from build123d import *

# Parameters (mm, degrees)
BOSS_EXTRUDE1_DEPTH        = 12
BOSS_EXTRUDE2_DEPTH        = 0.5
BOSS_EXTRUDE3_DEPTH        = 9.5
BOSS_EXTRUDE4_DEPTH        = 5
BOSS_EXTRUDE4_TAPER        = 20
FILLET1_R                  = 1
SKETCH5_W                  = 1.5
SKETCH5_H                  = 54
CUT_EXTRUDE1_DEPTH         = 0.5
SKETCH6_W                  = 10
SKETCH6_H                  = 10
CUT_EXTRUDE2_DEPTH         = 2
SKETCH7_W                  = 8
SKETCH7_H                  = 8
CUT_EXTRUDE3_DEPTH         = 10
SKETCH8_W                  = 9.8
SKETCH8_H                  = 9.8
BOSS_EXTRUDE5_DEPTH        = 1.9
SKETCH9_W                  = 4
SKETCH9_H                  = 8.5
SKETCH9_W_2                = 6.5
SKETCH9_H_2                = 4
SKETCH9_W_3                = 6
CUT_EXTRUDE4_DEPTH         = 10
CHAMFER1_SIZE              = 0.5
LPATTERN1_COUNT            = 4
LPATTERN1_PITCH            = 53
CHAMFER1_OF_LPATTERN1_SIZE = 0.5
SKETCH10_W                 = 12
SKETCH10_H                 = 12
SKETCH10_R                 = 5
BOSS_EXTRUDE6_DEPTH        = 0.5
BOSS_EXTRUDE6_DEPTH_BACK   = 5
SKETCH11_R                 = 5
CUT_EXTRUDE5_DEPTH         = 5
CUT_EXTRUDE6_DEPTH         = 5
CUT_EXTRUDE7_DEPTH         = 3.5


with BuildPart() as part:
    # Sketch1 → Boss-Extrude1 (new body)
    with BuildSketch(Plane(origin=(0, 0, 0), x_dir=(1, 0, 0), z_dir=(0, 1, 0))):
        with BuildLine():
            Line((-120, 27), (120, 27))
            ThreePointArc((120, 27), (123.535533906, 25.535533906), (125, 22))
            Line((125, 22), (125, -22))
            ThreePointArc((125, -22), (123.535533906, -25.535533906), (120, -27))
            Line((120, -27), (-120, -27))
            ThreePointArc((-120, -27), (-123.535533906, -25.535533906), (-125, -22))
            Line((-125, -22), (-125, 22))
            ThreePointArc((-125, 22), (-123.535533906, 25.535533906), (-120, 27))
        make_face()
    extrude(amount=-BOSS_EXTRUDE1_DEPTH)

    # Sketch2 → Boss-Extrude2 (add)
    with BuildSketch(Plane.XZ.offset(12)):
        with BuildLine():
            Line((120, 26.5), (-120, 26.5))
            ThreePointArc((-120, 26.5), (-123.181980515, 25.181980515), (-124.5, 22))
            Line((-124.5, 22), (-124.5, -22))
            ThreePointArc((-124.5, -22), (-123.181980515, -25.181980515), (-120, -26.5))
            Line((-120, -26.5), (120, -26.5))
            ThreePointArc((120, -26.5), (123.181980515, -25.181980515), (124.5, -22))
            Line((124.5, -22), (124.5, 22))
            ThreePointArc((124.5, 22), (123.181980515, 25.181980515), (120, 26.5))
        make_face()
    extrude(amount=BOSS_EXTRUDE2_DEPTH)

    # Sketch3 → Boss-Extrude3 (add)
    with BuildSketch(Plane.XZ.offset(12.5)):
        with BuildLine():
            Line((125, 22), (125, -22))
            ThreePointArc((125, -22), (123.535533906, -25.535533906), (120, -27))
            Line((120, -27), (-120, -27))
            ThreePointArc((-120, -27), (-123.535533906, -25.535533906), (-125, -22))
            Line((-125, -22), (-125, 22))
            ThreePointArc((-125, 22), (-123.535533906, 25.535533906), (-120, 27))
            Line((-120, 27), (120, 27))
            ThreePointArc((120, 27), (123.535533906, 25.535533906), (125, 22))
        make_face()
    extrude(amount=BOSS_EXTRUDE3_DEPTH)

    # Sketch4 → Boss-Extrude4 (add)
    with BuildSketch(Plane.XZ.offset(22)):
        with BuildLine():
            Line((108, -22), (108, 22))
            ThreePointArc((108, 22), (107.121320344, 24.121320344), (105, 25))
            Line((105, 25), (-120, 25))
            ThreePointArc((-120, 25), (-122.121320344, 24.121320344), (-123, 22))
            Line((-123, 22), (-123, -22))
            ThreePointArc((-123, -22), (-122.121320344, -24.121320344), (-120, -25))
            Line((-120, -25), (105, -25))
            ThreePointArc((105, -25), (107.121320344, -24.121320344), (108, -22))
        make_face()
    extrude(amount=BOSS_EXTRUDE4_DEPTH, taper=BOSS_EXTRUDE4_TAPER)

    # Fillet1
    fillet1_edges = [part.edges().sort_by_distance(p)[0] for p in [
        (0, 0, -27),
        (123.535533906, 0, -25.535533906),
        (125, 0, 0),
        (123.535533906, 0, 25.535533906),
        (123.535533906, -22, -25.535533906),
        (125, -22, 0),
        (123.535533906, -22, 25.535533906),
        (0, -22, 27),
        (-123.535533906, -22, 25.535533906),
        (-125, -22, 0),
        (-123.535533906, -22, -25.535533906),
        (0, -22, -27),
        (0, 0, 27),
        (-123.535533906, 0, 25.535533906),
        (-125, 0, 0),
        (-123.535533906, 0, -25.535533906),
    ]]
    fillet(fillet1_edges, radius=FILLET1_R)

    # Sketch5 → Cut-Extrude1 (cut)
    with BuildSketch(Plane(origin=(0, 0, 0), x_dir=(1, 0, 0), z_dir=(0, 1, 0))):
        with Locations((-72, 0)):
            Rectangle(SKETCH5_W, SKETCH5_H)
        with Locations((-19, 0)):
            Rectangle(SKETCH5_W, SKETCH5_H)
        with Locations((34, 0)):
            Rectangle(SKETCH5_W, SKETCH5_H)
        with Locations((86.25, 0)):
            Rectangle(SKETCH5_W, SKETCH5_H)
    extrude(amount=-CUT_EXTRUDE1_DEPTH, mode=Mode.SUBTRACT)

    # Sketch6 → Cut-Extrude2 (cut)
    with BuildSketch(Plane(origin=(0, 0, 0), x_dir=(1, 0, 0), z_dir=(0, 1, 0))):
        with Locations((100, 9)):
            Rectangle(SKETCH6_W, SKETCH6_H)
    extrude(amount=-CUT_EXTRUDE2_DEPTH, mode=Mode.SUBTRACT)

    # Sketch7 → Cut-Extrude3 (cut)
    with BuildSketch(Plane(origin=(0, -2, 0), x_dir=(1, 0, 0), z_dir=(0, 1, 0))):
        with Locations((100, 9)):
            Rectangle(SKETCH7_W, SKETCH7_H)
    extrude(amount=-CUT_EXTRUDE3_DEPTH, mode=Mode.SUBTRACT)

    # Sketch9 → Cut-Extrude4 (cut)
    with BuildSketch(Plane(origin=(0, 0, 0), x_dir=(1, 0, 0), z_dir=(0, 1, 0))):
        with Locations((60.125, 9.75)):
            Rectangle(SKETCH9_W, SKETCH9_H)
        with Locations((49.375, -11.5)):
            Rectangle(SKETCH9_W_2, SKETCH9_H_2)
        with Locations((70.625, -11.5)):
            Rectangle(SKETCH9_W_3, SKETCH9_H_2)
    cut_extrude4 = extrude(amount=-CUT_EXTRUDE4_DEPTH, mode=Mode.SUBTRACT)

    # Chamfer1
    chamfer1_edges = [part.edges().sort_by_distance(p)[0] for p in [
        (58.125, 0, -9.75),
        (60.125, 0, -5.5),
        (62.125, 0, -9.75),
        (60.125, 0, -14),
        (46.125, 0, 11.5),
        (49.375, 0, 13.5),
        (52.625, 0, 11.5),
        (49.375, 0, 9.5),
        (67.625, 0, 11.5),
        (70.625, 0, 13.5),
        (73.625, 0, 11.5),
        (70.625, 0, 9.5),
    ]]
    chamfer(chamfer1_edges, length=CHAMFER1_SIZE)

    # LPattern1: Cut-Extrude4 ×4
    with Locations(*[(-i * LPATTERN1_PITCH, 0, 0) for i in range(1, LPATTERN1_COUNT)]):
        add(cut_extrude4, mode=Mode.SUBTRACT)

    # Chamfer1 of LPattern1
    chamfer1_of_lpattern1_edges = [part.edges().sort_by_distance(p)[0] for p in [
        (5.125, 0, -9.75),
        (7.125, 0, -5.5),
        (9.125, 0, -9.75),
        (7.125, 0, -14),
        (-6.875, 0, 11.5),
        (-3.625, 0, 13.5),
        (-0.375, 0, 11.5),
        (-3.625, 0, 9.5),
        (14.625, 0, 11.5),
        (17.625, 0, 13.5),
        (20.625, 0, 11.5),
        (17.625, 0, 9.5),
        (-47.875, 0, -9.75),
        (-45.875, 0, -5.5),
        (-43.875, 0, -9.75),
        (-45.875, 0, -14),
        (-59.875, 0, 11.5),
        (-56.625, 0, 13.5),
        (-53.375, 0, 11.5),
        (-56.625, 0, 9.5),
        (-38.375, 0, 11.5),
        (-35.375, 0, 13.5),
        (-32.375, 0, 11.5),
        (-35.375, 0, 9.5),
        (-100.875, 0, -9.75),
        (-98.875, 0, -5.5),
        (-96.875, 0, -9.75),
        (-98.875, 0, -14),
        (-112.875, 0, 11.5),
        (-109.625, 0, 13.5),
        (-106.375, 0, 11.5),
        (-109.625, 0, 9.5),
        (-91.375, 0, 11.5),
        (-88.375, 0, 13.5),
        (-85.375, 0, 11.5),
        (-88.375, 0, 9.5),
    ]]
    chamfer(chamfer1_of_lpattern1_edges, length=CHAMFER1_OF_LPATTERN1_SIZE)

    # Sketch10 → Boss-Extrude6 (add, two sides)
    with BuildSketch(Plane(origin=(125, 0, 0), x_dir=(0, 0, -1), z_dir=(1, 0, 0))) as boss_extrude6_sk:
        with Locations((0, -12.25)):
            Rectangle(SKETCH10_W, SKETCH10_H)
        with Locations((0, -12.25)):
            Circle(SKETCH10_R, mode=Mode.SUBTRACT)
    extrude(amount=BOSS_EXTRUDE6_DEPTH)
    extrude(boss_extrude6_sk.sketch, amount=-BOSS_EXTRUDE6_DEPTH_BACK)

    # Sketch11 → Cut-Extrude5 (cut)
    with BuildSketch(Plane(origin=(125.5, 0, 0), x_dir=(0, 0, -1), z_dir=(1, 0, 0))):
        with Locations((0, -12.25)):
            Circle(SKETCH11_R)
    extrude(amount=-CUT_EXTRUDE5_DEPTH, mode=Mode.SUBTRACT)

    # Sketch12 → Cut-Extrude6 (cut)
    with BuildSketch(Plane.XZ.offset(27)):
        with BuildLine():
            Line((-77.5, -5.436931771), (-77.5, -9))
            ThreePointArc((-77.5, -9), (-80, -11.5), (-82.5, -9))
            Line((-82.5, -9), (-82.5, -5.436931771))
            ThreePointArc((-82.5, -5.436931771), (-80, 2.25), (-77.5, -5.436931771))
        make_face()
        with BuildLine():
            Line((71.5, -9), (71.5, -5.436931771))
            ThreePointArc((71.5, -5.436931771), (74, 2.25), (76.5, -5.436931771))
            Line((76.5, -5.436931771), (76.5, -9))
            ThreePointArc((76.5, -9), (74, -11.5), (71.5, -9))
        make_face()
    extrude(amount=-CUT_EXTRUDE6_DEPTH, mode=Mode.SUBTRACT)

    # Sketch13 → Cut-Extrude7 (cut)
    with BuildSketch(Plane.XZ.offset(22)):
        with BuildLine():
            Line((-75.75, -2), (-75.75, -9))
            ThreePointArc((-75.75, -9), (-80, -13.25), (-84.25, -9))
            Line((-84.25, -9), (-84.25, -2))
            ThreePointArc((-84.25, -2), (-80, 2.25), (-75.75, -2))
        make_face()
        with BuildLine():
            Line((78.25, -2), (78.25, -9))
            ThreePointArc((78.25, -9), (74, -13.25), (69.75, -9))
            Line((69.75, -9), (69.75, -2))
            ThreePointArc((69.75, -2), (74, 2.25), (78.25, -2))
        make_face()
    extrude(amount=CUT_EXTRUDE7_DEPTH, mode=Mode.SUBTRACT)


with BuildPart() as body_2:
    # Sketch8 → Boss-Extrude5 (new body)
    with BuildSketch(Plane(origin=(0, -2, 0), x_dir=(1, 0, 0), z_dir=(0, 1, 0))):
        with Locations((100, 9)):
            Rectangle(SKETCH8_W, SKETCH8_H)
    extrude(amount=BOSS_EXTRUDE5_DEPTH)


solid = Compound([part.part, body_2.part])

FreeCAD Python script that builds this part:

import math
import FreeCAD as App
import Part
import Sketcher
from FreeCAD import Vector


def edges_at(feature, points):
    """Names of the edges that pass closest to the given points."""
    edges = feature.Shape.Edges
    near = lambda p: min(range(len(edges)), key=lambda i: edges[i].distToShape(Part.Vertex(*p))[0])
    return sorted({f"Edge{near(p) + 1}" for p in points})


def add_polygon(sketch, points):
    """Adds a closed chain of lines whose ends are joined by coincident constraints."""
    first, n = sketch.GeometryCount, len(points)
    for a, b in zip(points, points[1:] + points[:1]):
        sketch.addGeometry(Part.LineSegment(App.Vector(*a, 0), App.Vector(*b, 0)), False)
    for i in range(n):
        sketch.addConstraint(Sketcher.Constraint("Coincident", first + i, 2, first + (i + 1) % n, 1))

doc = App.newDocument("Part")
body = doc.addObject("PartDesign::Body", "Body")

# Sketch on XZ plane
sketch1 = body.newObject("Sketcher::SketchObject", "Sketch")
sketch1.AttachmentSupport = (doc.getObject("XZ_Plane"), [""])
sketch1.MapMode = "FlatFace"
sketch1.addGeometry(Part.LineSegment(Vector(120, -27, 0), Vector(-120, -27, 0)), False)
sketch1.addGeometry(Part.ArcOfCircle(Part.Circle(Vector(-120, -22, 0), Vector(0, 0, 1), 5), math.radians(180), math.radians(270)), False)
sketch1.addGeometry(Part.LineSegment(Vector(-125, -22, 0), Vector(-125, 22, 0)), False)
sketch1.addGeometry(Part.ArcOfCircle(Part.Circle(Vector(-120, 22, 0), Vector(0, 0, 1), 5), math.radians(90), math.radians(180)), False)
sketch1.addGeometry(Part.LineSegment(Vector(-120, 27, 0), Vector(120, 27, 0)), False)
sketch1.addGeometry(Part.ArcOfCircle(Part.Circle(Vector(120, 22, 0), Vector(0, 0, 1), 5), math.radians(0), math.radians(90)), False)
sketch1.addGeometry(Part.LineSegment(Vector(125, 22, 0), Vector(125, -22, 0)), False)
sketch1.addGeometry(Part.ArcOfCircle(Part.Circle(Vector(120, -22, 0), Vector(0, 0, 1), 5), math.radians(-90), math.radians(0)), False)
sketch1.addConstraint(Sketcher.Constraint("Tangent", 0, 2, 1, 2))
sketch1.addConstraint(Sketcher.Constraint("Tangent", 1, 1, 2, 1))
sketch1.addConstraint(Sketcher.Constraint("Tangent", 2, 2, 3, 2))
sketch1.addConstraint(Sketcher.Constraint("Tangent", 3, 1, 4, 1))
sketch1.addConstraint(Sketcher.Constraint("Tangent", 4, 2, 5, 2))
sketch1.addConstraint(Sketcher.Constraint("Tangent", 5, 1, 6, 1))
sketch1.addConstraint(Sketcher.Constraint("Tangent", 6, 2, 7, 2))
sketch1.addConstraint(Sketcher.Constraint("Tangent", 7, 1, 0, 1))
sketch1.addConstraint(Sketcher.Constraint("Horizontal", 0))
sketch1.addConstraint(Sketcher.Constraint("Vertical", 2))
sketch1.addConstraint(Sketcher.Constraint("Horizontal", 4))
sketch1.addConstraint(Sketcher.Constraint("Vertical", 6))
sketch1.addConstraint(Sketcher.Constraint("Equal", 1, 3))
sketch1.addConstraint(Sketcher.Constraint("Equal", 3, 5))
sketch1.addConstraint(Sketcher.Constraint("Equal", 5, 7))
sketch1.addConstraint(Sketcher.Constraint("Symmetric", 1, 3, 5, 3, -1, 1))
sketch1.addConstraint(Sketcher.Constraint("Radius", 1, 5.0))
sketch1.addConstraint(Sketcher.Constraint("DistanceX", 0, 2, 0, 1, 240.0))
sketch1.addConstraint(Sketcher.Constraint("DistanceY", 2, 1, 2, 2, 44.0))
pad1 = body.newObject("PartDesign::Pad", "Pad")
pad1.Profile = sketch1
pad1.Length = 12

# Sketch on XZ plane
sketch2 = body.newObject("Sketcher::SketchObject", "Sketch001")
sketch2.AttachmentSupport = (doc.getObject("XZ_Plane"), [""])
sketch2.MapMode = "FlatFace"
sketch2.AttachmentOffset = App.Placement(Vector(0, 0, 12), App.Rotation())
sketch2.addGeometry(Part.LineSegment(Vector(120, 26.5, 0), Vector(-120, 26.5, 0)), False)
sketch2.addGeometry(Part.ArcOfCircle(Part.Circle(Vector(-120, 22, 0), Vector(0, 0, 1), 4.5), math.radians(90), math.radians(180)), False)
sketch2.addGeometry(Part.LineSegment(Vector(-124.5, 22, 0), Vector(-124.5, -22, 0)), False)
sketch2.addGeometry(Part.ArcOfCircle(Part.Circle(Vector(-120, -22, 0), Vector(0, 0, 1), 4.5), math.radians(-180), math.radians(-90)), False)
sketch2.addGeometry(Part.LineSegment(Vector(-120, -26.5, 0), Vector(120, -26.5, 0)), False)
sketch2.addGeometry(Part.ArcOfCircle(Part.Circle(Vector(120, -22, 0), Vector(0, 0, 1), 4.5), math.radians(-90), math.radians(0)), False)
sketch2.addGeometry(Part.LineSegment(Vector(124.5, -22, 0), Vector(124.5, 22, 0)), False)
sketch2.addGeometry(Part.ArcOfCircle(Part.Circle(Vector(120, 22, 0), Vector(0, 0, 1), 4.5), math.radians(0), math.radians(90)), False)
sketch2.addConstraint(Sketcher.Constraint("Tangent", 0, 2, 1, 1))
sketch2.addConstraint(Sketcher.Constraint("Tangent", 1, 2, 2, 1))
sketch2.addConstraint(Sketcher.Constraint("Tangent", 2, 2, 3, 1))
sketch2.addConstraint(Sketcher.Constraint("Tangent", 3, 2, 4, 1))
sketch2.addConstraint(Sketcher.Constraint("Tangent", 4, 2, 5, 1))
sketch2.addConstraint(Sketcher.Constraint("Tangent", 5, 2, 6, 1))
sketch2.addConstraint(Sketcher.Constraint("Tangent", 6, 2, 7, 1))
sketch2.addConstraint(Sketcher.Constraint("Tangent", 7, 2, 0, 1))
sketch2.addConstraint(Sketcher.Constraint("Horizontal", 0))
sketch2.addConstraint(Sketcher.Constraint("Vertical", 2))
sketch2.addConstraint(Sketcher.Constraint("Horizontal", 4))
sketch2.addConstraint(Sketcher.Constraint("Vertical", 6))
sketch2.addConstraint(Sketcher.Constraint("Equal", 1, 3))
sketch2.addConstraint(Sketcher.Constraint("Equal", 3, 5))
sketch2.addConstraint(Sketcher.Constraint("Equal", 5, 7))
sketch2.addConstraint(Sketcher.Constraint("Symmetric", 1, 3, 5, 3, -1, 1))
sketch2.addConstraint(Sketcher.Constraint("Radius", 1, 4.5))
sketch2.addConstraint(Sketcher.Constraint("DistanceX", 0, 2, 0, 1, 240.0))
sketch2.addConstraint(Sketcher.Constraint("DistanceY", 2, 2, 2, 1, 44.0))
pad2 = body.newObject("PartDesign::Pad", "Pad001")
pad2.Profile = sketch2
pad2.Length = 0.5

# Sketch on XZ plane
sketch3 = body.newObject("Sketcher::SketchObject", "Sketch002")
sketch3.AttachmentSupport = (doc.getObject("XZ_Plane"), [""])
sketch3.MapMode = "FlatFace"
sketch3.AttachmentOffset = App.Placement(Vector(0, 0, 12.5), App.Rotation())
sketch3.addGeometry(Part.LineSegment(Vector(125, -22, 0), Vector(125, 22, 0)), False)
sketch3.addGeometry(Part.ArcOfCircle(Part.Circle(Vector(120, 22, 0), Vector(0, 0, 1), 5), math.radians(0), math.radians(90)), False)
sketch3.addGeometry(Part.LineSegment(Vector(120, 27, 0), Vector(-120, 27, 0)), False)
sketch3.addGeometry(Part.ArcOfCircle(Part.Circle(Vector(-120, 22, 0), Vector(0, 0, 1), 5), math.radians(90), math.radians(180)), False)
sketch3.addGeometry(Part.LineSegment(Vector(-125, 22, 0), Vector(-125, -22, 0)), False)
sketch3.addGeometry(Part.ArcOfCircle(Part.Circle(Vector(-120, -22, 0), Vector(0, 0, 1), 5), math.radians(180), math.radians(270)), False)
sketch3.addGeometry(Part.LineSegment(Vector(-120, -27, 0), Vector(120, -27, 0)), False)
sketch3.addGeometry(Part.ArcOfCircle(Part.Circle(Vector(120, -22, 0), Vector(0, 0, 1), 5), math.radians(-90), math.radians(0)), False)
sketch3.addConstraint(Sketcher.Constraint("Tangent", 0, 2, 1, 1))
sketch3.addConstraint(Sketcher.Constraint("Tangent", 1, 2, 2, 1))
sketch3.addConstraint(Sketcher.Constraint("Tangent", 2, 2, 3, 1))
sketch3.addConstraint(Sketcher.Constraint("Tangent", 3, 2, 4, 1))
sketch3.addConstraint(Sketcher.Constraint("Tangent", 4, 2, 5, 1))
sketch3.addConstraint(Sketcher.Constraint("Tangent", 5, 2, 6, 1))
sketch3.addConstraint(Sketcher.Constraint("Tangent", 6, 2, 7, 1))
sketch3.addConstraint(Sketcher.Constraint("Tangent", 7, 2, 0, 1))
sketch3.addConstraint(Sketcher.Constraint("Vertical", 0))
sketch3.addConstraint(Sketcher.Constraint("Horizontal", 2))
sketch3.addConstraint(Sketcher.Constraint("Vertical", 4))
sketch3.addConstraint(Sketcher.Constraint("Horizontal", 6))
sketch3.addConstraint(Sketcher.Constraint("Equal", 1, 3))
sketch3.addConstraint(Sketcher.Constraint("Equal", 3, 5))
sketch3.addConstraint(Sketcher.Constraint("Equal", 5, 7))
sketch3.addConstraint(Sketcher.Constraint("Symmetric", 1, 3, 5, 3, -1, 1))
sketch3.addConstraint(Sketcher.Constraint("Radius", 1, 5.0))
sketch3.addConstraint(Sketcher.Constraint("DistanceX", 2, 2, 2, 1, 240.0))
sketch3.addConstraint(Sketcher.Constraint("DistanceY", 0, 1, 0, 2, 44.0))
pad3 = body.newObject("PartDesign::Pad", "Pad002")
pad3.Profile = sketch3
pad3.Length = 9.5

# Sketch on XZ plane
sketch4 = body.newObject("Sketcher::SketchObject", "Sketch003")
sketch4.AttachmentSupport = (doc.getObject("XZ_Plane"), [""])
sketch4.MapMode = "FlatFace"
sketch4.AttachmentOffset = App.Placement(Vector(0, 0, 22), App.Rotation())
sketch4.addGeometry(Part.LineSegment(Vector(108, -22, 0), Vector(108, 22, 0)), False)
sketch4.addGeometry(Part.ArcOfCircle(Part.Circle(Vector(105, 22, 0), Vector(0, 0, 1), 3), math.radians(0), math.radians(90)), False)
sketch4.addGeometry(Part.LineSegment(Vector(105, 25, 0), Vector(-120, 25, 0)), False)
sketch4.addGeometry(Part.ArcOfCircle(Part.Circle(Vector(-120, 22, 0), Vector(0, 0, 1), 3), math.radians(90), math.radians(180)), False)
sketch4.addGeometry(Part.LineSegment(Vector(-123, 22, 0), Vector(-123, -22, 0)), False)
sketch4.addGeometry(Part.ArcOfCircle(Part.Circle(Vector(-120, -22, 0), Vector(0, 0, 1), 3), math.radians(180), math.radians(270)), False)
sketch4.addGeometry(Part.LineSegment(Vector(-120, -25, 0), Vector(105, -25, 0)), False)
sketch4.addGeometry(Part.ArcOfCircle(Part.Circle(Vector(105, -22, 0), Vector(0, 0, 1), 3), math.radians(-90), math.radians(0)), False)
sketch4.addConstraint(Sketcher.Constraint("Tangent", 0, 2, 1, 1))
sketch4.addConstraint(Sketcher.Constraint("Tangent", 1, 2, 2, 1))
sketch4.addConstraint(Sketcher.Constraint("Tangent", 2, 2, 3, 1))
sketch4.addConstraint(Sketcher.Constraint("Tangent", 3, 2, 4, 1))
sketch4.addConstraint(Sketcher.Constraint("Tangent", 4, 2, 5, 1))
sketch4.addConstraint(Sketcher.Constraint("Tangent", 5, 2, 6, 1))
sketch4.addConstraint(Sketcher.Constraint("Tangent", 6, 2, 7, 1))
sketch4.addConstraint(Sketcher.Constraint("Tangent", 7, 2, 0, 1))
sketch4.addConstraint(Sketcher.Constraint("Vertical", 0))
sketch4.addConstraint(Sketcher.Constraint("Horizontal", 2))
sketch4.addConstraint(Sketcher.Constraint("Vertical", 4))
sketch4.addConstraint(Sketcher.Constraint("Horizontal", 6))
sketch4.addConstraint(Sketcher.Constraint("Equal", 1, 3))
sketch4.addConstraint(Sketcher.Constraint("Equal", 3, 5))
sketch4.addConstraint(Sketcher.Constraint("Equal", 5, 7))
sketch4.addConstraint(Sketcher.Constraint("Radius", 1, 3.0))
sketch4.addConstraint(Sketcher.Constraint("DistanceX", 2, 2, 2, 1, 225.0))
sketch4.addConstraint(Sketcher.Constraint("DistanceY", 0, 1, 0, 2, 44.0))
sketch4.addConstraint(Sketcher.Constraint("DistanceX", -1, 1, 1, 3, 105.0))
sketch4.addConstraint(Sketcher.Constraint("DistanceY", -1, 1, 1, 3, 22.0))
pad4 = body.newObject("PartDesign::Pad", "Pad003")
pad4.Profile = sketch4
pad4.Length = 5
pad4.TaperAngle = -20
doc.recompute()

fillet = body.newObject("PartDesign::Fillet", "Fillet")
fillet.Base = (pad4, edges_at(pad4, [
    (0, 0, -27),
    (123.536, 0, -25.536),
    (125, 0, 0),
    (123.536, 0, 25.536),
    (123.536, -22, -25.536),
    (125, -22, 0),
    (123.536, -22, 25.536),
    (0, -22, 27),
    (-123.536, -22, 25.536),
    (-125, -22, 0),
    (-123.536, -22, -25.536),
    (0, -22, -27),
    (0, 0, 27),
    (-123.536, 0, 25.536),
    (-125, 0, 0),
    (-123.536, 0, -25.536),
]))
fillet.Radius = 1

# Sketch on XZ plane
sketch5 = body.newObject("Sketcher::SketchObject", "Sketch004")
sketch5.AttachmentSupport = (doc.getObject("XZ_Plane"), [""])
sketch5.MapMode = "FlatFace"
add_polygon(sketch5, [(-72.8, -27), (-72.8, 27), (-71.2, 27), (-71.2, -27)])  # lines 0-3
add_polygon(sketch5, [(-19.8, -27), (-19.8, 27), (-18.2, 27), (-18.2, -27)])  # lines 4-7
add_polygon(sketch5, [(33.2, -27), (33.2, 27), (34.8, 27), (34.8, -27)])  # lines 8-11
add_polygon(sketch5, [(85.5, -27), (85.5, 27), (87, 27), (87, -27)])  # lines 12-15
sketch5.addConstraint(Sketcher.Constraint("Vertical", 0))
sketch5.addConstraint(Sketcher.Constraint("Horizontal", 1))
sketch5.addConstraint(Sketcher.Constraint("Vertical", 2))
sketch5.addConstraint(Sketcher.Constraint("Horizontal", 3))
sketch5.addConstraint(Sketcher.Constraint("Vertical", 4))
sketch5.addConstraint(Sketcher.Constraint("Horizontal", 5))
sketch5.addConstraint(Sketcher.Constraint("Vertical", 6))
sketch5.addConstraint(Sketcher.Constraint("Horizontal", 7))
sketch5.addConstraint(Sketcher.Constraint("Vertical", 8))
sketch5.addConstraint(Sketcher.Constraint("Horizontal", 9))
sketch5.addConstraint(Sketcher.Constraint("Vertical", 10))
sketch5.addConstraint(Sketcher.Constraint("Horizontal", 11))
sketch5.addConstraint(Sketcher.Constraint("Vertical", 12))
sketch5.addConstraint(Sketcher.Constraint("Horizontal", 13))
sketch5.addConstraint(Sketcher.Constraint("Vertical", 14))
sketch5.addConstraint(Sketcher.Constraint("Horizontal", 15))
sketch5.addConstraint(Sketcher.Constraint("Horizontal", 1, 2, 4, 2))
sketch5.addConstraint(Sketcher.Constraint("Horizontal", 3, 2, 6, 2))
sketch5.addConstraint(Sketcher.Constraint("Horizontal", 5, 2, 8, 2))
sketch5.addConstraint(Sketcher.Constraint("Horizontal", 7, 2, 10, 2))
sketch5.addConstraint(Sketcher.Constraint("Horizontal", 9, 2, 12, 2))
sketch5.addConstraint(Sketcher.Constraint("Horizontal", 11, 2, 14, 2))
sketch5.addConstraint(Sketcher.Constraint("Equal", 3, 5))
sketch5.addConstraint(Sketcher.Constraint("Equal", 7, 9))
sketch5.addConstraint(Sketcher.Constraint("Equal", 11, 13))
sketch5.addConstraint(Sketcher.Constraint("DistanceY", 0, 1, 0, 2, 54.0))
sketch5.addConstraint(Sketcher.Constraint("DistanceX", 1, 1, 1, 2, 1.5))
sketch5.addConstraint(Sketcher.Constraint("DistanceY", -1, 1, 0, 2, 27.0))
sketch5.addConstraint(Sketcher.Constraint("DistanceX", -1, 1, 13, 2, 87.0))
sketch5.addConstraint(Sketcher.Constraint("DistanceX", 0, 2, 4, 2, 53.0))
sketch5.addConstraint(Sketcher.Constraint("DistanceX", 4, 2, 8, 2, 53.0))
sketch5.addConstraint(Sketcher.Constraint("DistanceX", 0, 2, -1, 1, 72.75))
pocket1 = body.newObject("PartDesign::Pocket", "Pocket")
pocket1.Profile = sketch5
pocket1.Length = 0.5
pocket1.Reversed = True

# Sketch on XZ plane
sketch6 = body.newObject("Sketcher::SketchObject", "Sketch005")
sketch6.AttachmentSupport = (doc.getObject("XZ_Plane"), [""])
sketch6.MapMode = "FlatFace"
add_polygon(sketch6, [(95, -14), (95, -4), (105, -4), (105, -14)])  # lines 0-3
sketch6.addConstraint(Sketcher.Constraint("Vertical", 0))
sketch6.addConstraint(Sketcher.Constraint("Horizontal", 1))
sketch6.addConstraint(Sketcher.Constraint("Vertical", 2))
sketch6.addConstraint(Sketcher.Constraint("Horizontal", 3))
sketch6.addConstraint(Sketcher.Constraint("Equal", 3, 0))
sketch6.addConstraint(Sketcher.Constraint("DistanceX", 1, 1, 1, 2, 10.0))
sketch6.addConstraint(Sketcher.Constraint("DistanceX", -1, 1, 0, 2, 95.0))
sketch6.addConstraint(Sketcher.Constraint("DistanceY", 0, 2, -1, 1, 4.0))
pocket2 = body.newObject("PartDesign::Pocket", "Pocket001")
pocket2.Profile = sketch6
pocket2.Length = 2
pocket2.Reversed = True

# Sketch on XZ plane
sketch7 = body.newObject("Sketcher::SketchObject", "Sketch006")
sketch7.AttachmentSupport = (doc.getObject("XZ_Plane"), [""])
sketch7.MapMode = "FlatFace"
sketch7.AttachmentOffset = App.Placement(Vector(0, 0, 2), App.Rotation())
add_polygon(sketch7, [(96, -13), (96, -5), (104, -5), (104, -13)])  # lines 0-3
sketch7.addConstraint(Sketcher.Constraint("Vertical", 0))
sketch7.addConstraint(Sketcher.Constraint("Horizontal", 1))
sketch7.addConstraint(Sketcher.Constraint("Vertical", 2))
sketch7.addConstraint(Sketcher.Constraint("Horizontal", 3))
sketch7.addConstraint(Sketcher.Constraint("Equal", 3, 0))
sketch7.addConstraint(Sketcher.Constraint("DistanceX", 1, 1, 1, 2, 8.0))
sketch7.addConstraint(Sketcher.Constraint("DistanceX", -1, 1, 0, 2, 96.0))
sketch7.addConstraint(Sketcher.Constraint("DistanceY", 0, 2, -1, 1, 5.0))
pocket3 = body.newObject("PartDesign::Pocket", "Pocket002")
pocket3.Profile = sketch7
pocket3.Length = 10
pocket3.Reversed = True

# Sketch on XZ plane
sketch8 = body.newObject("Sketcher::SketchObject", "Sketch007")
sketch8.AttachmentSupport = (doc.getObject("XZ_Plane"), [""])
sketch8.MapMode = "FlatFace"
add_polygon(sketch8, [(58.1, -14), (58.1, -5.5), (62.1, -5.5), (62.1, -14)])  # lines 0-3
add_polygon(sketch8, [(46.1, 9.5), (46.1, 13.5), (52.6, 13.5), (52.6, 9.5)])  # lines 4-7
add_polygon(sketch8, [(67.6, 9.5), (67.6, 13.5), (73.6, 13.5), (73.6, 9.5)])  # lines 8-11
sketch8.addConstraint(Sketcher.Constraint("Vertical", 0))
sketch8.addConstraint(Sketcher.Constraint("Horizontal", 1))
sketch8.addConstraint(Sketcher.Constraint("Vertical", 2))
sketch8.addConstraint(Sketcher.Constraint("Horizontal", 3))
sketch8.addConstraint(Sketcher.Constraint("Vertical", 4))
sketch8.addConstraint(Sketcher.Constraint("Horizontal", 5))
sketch8.addConstraint(Sketcher.Constraint("Vertical", 6))
sketch8.addConstraint(Sketcher.Constraint("Horizontal", 7))
sketch8.addConstraint(Sketcher.Constraint("Vertical", 8))
sketch8.addConstraint(Sketcher.Constraint("Horizontal", 9))
sketch8.addConstraint(Sketcher.Constraint("Vertical", 10))
sketch8.addConstraint(Sketcher.Constraint("Horizontal", 11))
sketch8.addConstraint(Sketcher.Constraint("Horizontal", 5, 2, 8, 2))
sketch8.addConstraint(Sketcher.Constraint("Horizontal", 7, 2, 10, 2))
sketch8.addConstraint(Sketcher.Constraint("Equal", 3, 4))
sketch8.addConstraint(Sketcher.Constraint("DistanceX", 1, 1, 1, 2, 4.0))
sketch8.addConstraint(Sketcher.Constraint("DistanceX", 9, 1, 9, 2, 6.0))
sketch8.addConstraint(Sketcher.Constraint("DistanceX", 5, 1, 5, 2, 6.5))
sketch8.addConstraint(Sketcher.Constraint("DistanceY", 0, 1, 0, 2, 8.5))
sketch8.addConstraint(Sketcher.Constraint("DistanceY", 2, 2, -1, 1, 14.0))
sketch8.addConstraint(Sketcher.Constraint("DistanceX", 4, 2, 0, 2, 12.0))
sketch8.addConstraint(Sketcher.Constraint("DistanceY", 0, 2, 4, 2, 19.0))
sketch8.addConstraint(Sketcher.Constraint("DistanceX", 5, 2, 8, 2, 15.0))
sketch8.addConstraint(Sketcher.Constraint("DistanceX", -1, 1, 0, 2, 58.125))
pocket4 = body.newObject("PartDesign::Pocket", "Pocket003")
pocket4.Profile = sketch8
pocket4.Length = 10
pocket4.Reversed = True
doc.recompute()

chamfer = body.newObject("PartDesign::Chamfer", "Chamfer")
chamfer.Base = (pocket4, edges_at(pocket4, [
    (58.125, 0, -9.75),
    (60.125, 0, -5.5),
    (62.125, 0, -9.75),
    (60.125, 0, -14),
    (46.125, 0, 11.5),
    (49.375, 0, 13.5),
    (52.625, 0, 11.5),
    (49.375, 0, 9.5),
    (67.625, 0, 11.5),
    (70.625, 0, 13.5),
    (73.625, 0, 11.5),
    (70.625, 0, 9.5),
]))
chamfer.Size = 0.5
doc.recompute()

linearpattern = body.newObject("PartDesign::LinearPattern", "LinearPattern")
linearpattern.Originals = [pocket4]
linearpattern.Direction = (doc.getObject("X_Axis"), [""])
linearpattern.Mode = "offset"
linearpattern.Offset = 53
linearpattern.Occurrences = 4
linearpattern.Reversed = True
body.Tip = linearpattern
doc.recompute()

chamfer2 = body.newObject("PartDesign::Chamfer", "Chamfer001")
chamfer2.Base = (linearpattern, edges_at(linearpattern, [
    (5.125, 0, -9.75),
    (7.125, 0, -5.5),
    (9.125, 0, -9.75),
    (7.125, 0, -14),
    (-6.875, 0, 11.5),
    (-3.625, 0, 13.5),
    (-0.375, 0, 11.5),
    (-3.625, 0, 9.5),
    (14.625, 0, 11.5),
    (17.625, 0, 13.5),
    (20.625, 0, 11.5),
    (17.625, 0, 9.5),
    (-47.875, 0, -9.75),
    (-45.875, 0, -5.5),
    (-43.875, 0, -9.75),
    (-45.875, 0, -14),
    (-59.875, 0, 11.5),
    (-56.625, 0, 13.5),
    (-53.375, 0, 11.5),
    (-56.625, 0, 9.5),
    (-38.375, 0, 11.5),
    (-35.375, 0, 13.5),
    (-32.375, 0, 11.5),
    (-35.375, 0, 9.5),
    (-100.875, 0, -9.75),
    (-98.875, 0, -5.5),
    (-96.875, 0, -9.75),
    (-98.875, 0, -14),
    (-112.875, 0, 11.5),
    (-109.625, 0, 13.5),
    (-106.375, 0, 11.5),
    (-109.625, 0, 9.5),
    (-91.375, 0, 11.5),
    (-88.375, 0, 13.5),
    (-85.375, 0, 11.5),
    (-88.375, 0, 9.5),
]))
chamfer2.Size = 0.5

# Sketch on YZ plane
sketch9 = body.newObject("Sketcher::SketchObject", "Sketch008")
sketch9.AttachmentSupport = (doc.getObject("YZ_Plane"), [""])
sketch9.MapMode = "FlatFace"
sketch9.AttachmentOffset = App.Placement(Vector(0, 0, 125), App.Rotation())
add_polygon(sketch9, [(-6, 6), (-18, 6), (-18, -6), (-6, -6)])  # lines 0-3
sketch9.addGeometry(Part.Circle(Vector(-12, 0, 0), Vector(0, 0, 1), 5), False)  # 4
sketch9.addConstraint(Sketcher.Constraint("Horizontal", 0))
sketch9.addConstraint(Sketcher.Constraint("Vertical", 1))
sketch9.addConstraint(Sketcher.Constraint("Horizontal", 2))
sketch9.addConstraint(Sketcher.Constraint("Vertical", 3))
sketch9.addConstraint(Sketcher.Constraint("PointOnObject", 4, 3, -1))
sketch9.addConstraint(Sketcher.Constraint("Equal", 2, 1))
sketch9.addConstraint(Sketcher.Constraint("Diameter", 4, 10.0))
sketch9.addConstraint(Sketcher.Constraint("DistanceX", 0, 2, 0, 1, 12.0))
sketch9.addConstraint(Sketcher.Constraint("DistanceY", -1, 1, 0, 2, 6.0))
sketch9.addConstraint(Sketcher.Constraint("DistanceX", 0, 2, 4, 3, 6.0))
sketch9.addConstraint(Sketcher.Constraint("DistanceX", 4, 3, -1, 1, 12.25))
pad5 = body.newObject("PartDesign::Pad", "Pad004")
pad5.Profile = sketch9
pad5.Type = "TwoLengths"
pad5.Length = 0.5
pad5.Length2 = 5

# Sketch on YZ plane
sketch10 = body.newObject("Sketcher::SketchObject", "Sketch009")
sketch10.AttachmentSupport = (doc.getObject("YZ_Plane"), [""])
sketch10.MapMode = "FlatFace"
sketch10.AttachmentOffset = App.Placement(Vector(0, 0, 125.5), App.Rotation())
sketch10.addGeometry(Part.Circle(Vector(-12, 0, 0), Vector(0, 0, 1), 5), False)
sketch10.addConstraint(Sketcher.Constraint("PointOnObject", 0, 3, -1))
sketch10.addConstraint(Sketcher.Constraint("Diameter", 0, 10.0))
sketch10.addConstraint(Sketcher.Constraint("DistanceX", 0, 3, -1, 1, 12.25))
pocket5 = body.newObject("PartDesign::Pocket", "Pocket004")
pocket5.Profile = sketch10
pocket5.Length = 5

# Sketch on XZ plane
sketch11 = body.newObject("Sketcher::SketchObject", "Sketch010")
sketch11.AttachmentSupport = (doc.getObject("XZ_Plane"), [""])
sketch11.MapMode = "FlatFace"
sketch11.AttachmentOffset = App.Placement(Vector(0, 0, 27), App.Rotation())
sketch11.addGeometry(Part.LineSegment(Vector(-77.5, -9, 0), Vector(-77.5, -5.4, 0)), False)
sketch11.addGeometry(Part.ArcOfCircle(Part.Circle(Vector(-80, -2, 0), Vector(0, 0, 1), 4.2), math.radians(-54), math.radians(234)), False)
sketch11.addGeometry(Part.LineSegment(Vector(-82.5, -5.4, 0), Vector(-82.5, -9, 0)), False)
sketch11.addGeometry(Part.ArcOfCircle(Part.Circle(Vector(-80, -9, 0), Vector(0, 0, 1), 2.5), math.radians(180), math.radians(360)), False)
sketch11.addGeometry(Part.LineSegment(Vector(71.5, -5.4, 0), Vector(71.5, -9, 0)), False)
sketch11.addGeometry(Part.ArcOfCircle(Part.Circle(Vector(74, -9, 0), Vector(0, 0, 1), 2.5), math.radians(180), math.radians(360)), False)
sketch11.addGeometry(Part.LineSegment(Vector(76.5, -9, 0), Vector(76.5, -5.4, 0)), False)
sketch11.addGeometry(Part.ArcOfCircle(Part.Circle(Vector(74, -2, 0), Vector(0, 0, 1), 4.2), math.radians(-54), math.radians(234)), False)
sketch11.addConstraint(Sketcher.Constraint("Coincident", 0, 2, 1, 1))
sketch11.addConstraint(Sketcher.Constraint("Coincident", 1, 2, 2, 1))
sketch11.addConstraint(Sketcher.Constraint("Tangent", 2, 2, 3, 1))
sketch11.addConstraint(Sketcher.Constraint("Tangent", 3, 2, 0, 1))
sketch11.addConstraint(Sketcher.Constraint("Tangent", 4, 2, 5, 1))
sketch11.addConstraint(Sketcher.Constraint("Tangent", 5, 2, 6, 1))
sketch11.addConstraint(Sketcher.Constraint("Coincident", 6, 2, 7, 1))
sketch11.addConstraint(Sketcher.Constraint("Coincident", 7, 2, 4, 1))
sketch11.addConstraint(Sketcher.Constraint("Vertical", 0))
sketch11.addConstraint(Sketcher.Constraint("Vertical", 2))
sketch11.addConstraint(Sketcher.Constraint("Vertical", 4))
sketch11.addConstraint(Sketcher.Constraint("Vertical", 6))
sketch11.addConstraint(Sketcher.Constraint("Equal", 3, 5))
sketch11.addConstraint(Sketcher.Constraint("Equal", 1, 7))
sketch11.addConstraint(Sketcher.Constraint("Horizontal", 3, 3, 5, 3))
sketch11.addConstraint(Sketcher.Constraint("Horizontal", 1, 3, 7, 3))
sketch11.addConstraint(Sketcher.Constraint("Horizontal", 0, 2, 1, 2))
sketch11.addConstraint(Sketcher.Constraint("Horizontal", 1, 2, 6, 2))
sketch11.addConstraint(Sketcher.Constraint("Radius", 3, 2.5))
sketch11.addConstraint(Sketcher.Constraint("Radius", 1, 4.25))
sketch11.addConstraint(Sketcher.Constraint("DistanceX", 1, 3, -1, 1, 80.0))
sketch11.addConstraint(Sketcher.Constraint("DistanceY", 1, 3, -1, 1, 2.0))
sketch11.addConstraint(Sketcher.Constraint("DistanceY", 3, 3, -1, 1, 9.0))
sketch11.addConstraint(Sketcher.Constraint("DistanceX", -1, 1, 5, 3, 74.0))
pocket6 = body.newObject("PartDesign::Pocket", "Pocket005")
pocket6.Profile = sketch11
pocket6.Length = 5

# Sketch on XZ plane
sketch12 = body.newObject("Sketcher::SketchObject", "Sketch011")
sketch12.AttachmentSupport = (doc.getObject("XZ_Plane"), [""])
sketch12.MapMode = "FlatFace"
sketch12.AttachmentOffset = App.Placement(Vector(0, 0, 22), App.Rotation())
sketch12.addGeometry(Part.LineSegment(Vector(-75.8, -9, 0), Vector(-75.8, -2, 0)), False)
sketch12.addGeometry(Part.ArcOfCircle(Part.Circle(Vector(-80, -2, 0), Vector(0, 0, 1), 4.2), math.radians(0), math.radians(180)), False)
sketch12.addGeometry(Part.LineSegment(Vector(-84.2, -2, 0), Vector(-84.2, -9, 0)), False)
sketch12.addGeometry(Part.ArcOfCircle(Part.Circle(Vector(-80, -9, 0), Vector(0, 0, 1), 4.2), math.radians(180), math.radians(360)), False)
sketch12.addGeometry(Part.LineSegment(Vector(78.2, -9, 0), Vector(78.2, -2, 0)), False)
sketch12.addGeometry(Part.ArcOfCircle(Part.Circle(Vector(74, -2, 0), Vector(0, 0, 1), 4.2), math.radians(0), math.radians(180)), False)
sketch12.addGeometry(Part.LineSegment(Vector(69.8, -2, 0), Vector(69.8, -9, 0)), False)
sketch12.addGeometry(Part.ArcOfCircle(Part.Circle(Vector(74, -9, 0), Vector(0, 0, 1), 4.2), math.radians(180), math.radians(360)), False)
sketch12.addConstraint(Sketcher.Constraint("Tangent", 0, 2, 1, 1))
sketch12.addConstraint(Sketcher.Constraint("Tangent", 1, 2, 2, 1))
sketch12.addConstraint(Sketcher.Constraint("Tangent", 2, 2, 3, 1))
sketch12.addConstraint(Sketcher.Constraint("Tangent", 3, 2, 0, 1))
sketch12.addConstraint(Sketcher.Constraint("Tangent", 4, 2, 5, 1))
sketch12.addConstraint(Sketcher.Constraint("Tangent", 5, 2, 6, 1))
sketch12.addConstraint(Sketcher.Constraint("Tangent", 6, 2, 7, 1))
sketch12.addConstraint(Sketcher.Constraint("Tangent", 7, 2, 4, 1))
sketch12.addConstraint(Sketcher.Constraint("Vertical", 0))
sketch12.addConstraint(Sketcher.Constraint("Vertical", 2))
sketch12.addConstraint(Sketcher.Constraint("Vertical", 4))
sketch12.addConstraint(Sketcher.Constraint("Vertical", 6))
sketch12.addConstraint(Sketcher.Constraint("Equal", 3, 5))
sketch12.addConstraint(Sketcher.Constraint("Horizontal", 1, 3, 5, 3))
sketch12.addConstraint(Sketcher.Constraint("Horizontal", 3, 3, 7, 3))
sketch12.addConstraint(Sketcher.Constraint("DistanceY", 0, 1, 0, 2, 7.0))
sketch12.addConstraint(Sketcher.Constraint("Radius", 1, 4.25))
sketch12.addConstraint(Sketcher.Constraint("DistanceX", 1, 3, -1, 1, 80.0))
sketch12.addConstraint(Sketcher.Constraint("DistanceY", 1, 3, -1, 1, 2.0))
sketch12.addConstraint(Sketcher.Constraint("DistanceX", -1, 1, 5, 3, 74.0))
pocket7 = body.newObject("PartDesign::Pocket", "Pocket006")
pocket7.Profile = sketch12
pocket7.Length = 3.5
pocket7.Reversed = True
body2 = doc.addObject("PartDesign::Body", "Body001")

# Sketch on XZ plane
sketch13 = body2.newObject("Sketcher::SketchObject", "Sketch012")
sketch13.AttachmentSupport = (doc.getObject("XZ_Plane001"), [""])
sketch13.MapMode = "FlatFace"
sketch13.AttachmentOffset = App.Placement(Vector(0, 0, 2), App.Rotation())
add_polygon(sketch13, [(95, -14), (95, -4), (105, -4), (105, -14)])  # lines 0-3
sketch13.addConstraint(Sketcher.Constraint("Vertical", 0))
sketch13.addConstraint(Sketcher.Constraint("Horizontal", 1))
sketch13.addConstraint(Sketcher.Constraint("Vertical", 2))
sketch13.addConstraint(Sketcher.Constraint("Horizontal", 3))
sketch13.addConstraint(Sketcher.Constraint("Equal", 3, 0))
sketch13.addConstraint(Sketcher.Constraint("DistanceX", 1, 1, 1, 2, 9.8))
sketch13.addConstraint(Sketcher.Constraint("DistanceX", -1, 1, 0, 2, 95.1))
sketch13.addConstraint(Sketcher.Constraint("DistanceY", 0, 2, -1, 1, 4.1))
pad6 = body2.newObject("PartDesign::Pad", "Pad005")
pad6.Profile = sketch13
pad6.Length = 1.9
pad6.Reversed = True

doc.recompute()
